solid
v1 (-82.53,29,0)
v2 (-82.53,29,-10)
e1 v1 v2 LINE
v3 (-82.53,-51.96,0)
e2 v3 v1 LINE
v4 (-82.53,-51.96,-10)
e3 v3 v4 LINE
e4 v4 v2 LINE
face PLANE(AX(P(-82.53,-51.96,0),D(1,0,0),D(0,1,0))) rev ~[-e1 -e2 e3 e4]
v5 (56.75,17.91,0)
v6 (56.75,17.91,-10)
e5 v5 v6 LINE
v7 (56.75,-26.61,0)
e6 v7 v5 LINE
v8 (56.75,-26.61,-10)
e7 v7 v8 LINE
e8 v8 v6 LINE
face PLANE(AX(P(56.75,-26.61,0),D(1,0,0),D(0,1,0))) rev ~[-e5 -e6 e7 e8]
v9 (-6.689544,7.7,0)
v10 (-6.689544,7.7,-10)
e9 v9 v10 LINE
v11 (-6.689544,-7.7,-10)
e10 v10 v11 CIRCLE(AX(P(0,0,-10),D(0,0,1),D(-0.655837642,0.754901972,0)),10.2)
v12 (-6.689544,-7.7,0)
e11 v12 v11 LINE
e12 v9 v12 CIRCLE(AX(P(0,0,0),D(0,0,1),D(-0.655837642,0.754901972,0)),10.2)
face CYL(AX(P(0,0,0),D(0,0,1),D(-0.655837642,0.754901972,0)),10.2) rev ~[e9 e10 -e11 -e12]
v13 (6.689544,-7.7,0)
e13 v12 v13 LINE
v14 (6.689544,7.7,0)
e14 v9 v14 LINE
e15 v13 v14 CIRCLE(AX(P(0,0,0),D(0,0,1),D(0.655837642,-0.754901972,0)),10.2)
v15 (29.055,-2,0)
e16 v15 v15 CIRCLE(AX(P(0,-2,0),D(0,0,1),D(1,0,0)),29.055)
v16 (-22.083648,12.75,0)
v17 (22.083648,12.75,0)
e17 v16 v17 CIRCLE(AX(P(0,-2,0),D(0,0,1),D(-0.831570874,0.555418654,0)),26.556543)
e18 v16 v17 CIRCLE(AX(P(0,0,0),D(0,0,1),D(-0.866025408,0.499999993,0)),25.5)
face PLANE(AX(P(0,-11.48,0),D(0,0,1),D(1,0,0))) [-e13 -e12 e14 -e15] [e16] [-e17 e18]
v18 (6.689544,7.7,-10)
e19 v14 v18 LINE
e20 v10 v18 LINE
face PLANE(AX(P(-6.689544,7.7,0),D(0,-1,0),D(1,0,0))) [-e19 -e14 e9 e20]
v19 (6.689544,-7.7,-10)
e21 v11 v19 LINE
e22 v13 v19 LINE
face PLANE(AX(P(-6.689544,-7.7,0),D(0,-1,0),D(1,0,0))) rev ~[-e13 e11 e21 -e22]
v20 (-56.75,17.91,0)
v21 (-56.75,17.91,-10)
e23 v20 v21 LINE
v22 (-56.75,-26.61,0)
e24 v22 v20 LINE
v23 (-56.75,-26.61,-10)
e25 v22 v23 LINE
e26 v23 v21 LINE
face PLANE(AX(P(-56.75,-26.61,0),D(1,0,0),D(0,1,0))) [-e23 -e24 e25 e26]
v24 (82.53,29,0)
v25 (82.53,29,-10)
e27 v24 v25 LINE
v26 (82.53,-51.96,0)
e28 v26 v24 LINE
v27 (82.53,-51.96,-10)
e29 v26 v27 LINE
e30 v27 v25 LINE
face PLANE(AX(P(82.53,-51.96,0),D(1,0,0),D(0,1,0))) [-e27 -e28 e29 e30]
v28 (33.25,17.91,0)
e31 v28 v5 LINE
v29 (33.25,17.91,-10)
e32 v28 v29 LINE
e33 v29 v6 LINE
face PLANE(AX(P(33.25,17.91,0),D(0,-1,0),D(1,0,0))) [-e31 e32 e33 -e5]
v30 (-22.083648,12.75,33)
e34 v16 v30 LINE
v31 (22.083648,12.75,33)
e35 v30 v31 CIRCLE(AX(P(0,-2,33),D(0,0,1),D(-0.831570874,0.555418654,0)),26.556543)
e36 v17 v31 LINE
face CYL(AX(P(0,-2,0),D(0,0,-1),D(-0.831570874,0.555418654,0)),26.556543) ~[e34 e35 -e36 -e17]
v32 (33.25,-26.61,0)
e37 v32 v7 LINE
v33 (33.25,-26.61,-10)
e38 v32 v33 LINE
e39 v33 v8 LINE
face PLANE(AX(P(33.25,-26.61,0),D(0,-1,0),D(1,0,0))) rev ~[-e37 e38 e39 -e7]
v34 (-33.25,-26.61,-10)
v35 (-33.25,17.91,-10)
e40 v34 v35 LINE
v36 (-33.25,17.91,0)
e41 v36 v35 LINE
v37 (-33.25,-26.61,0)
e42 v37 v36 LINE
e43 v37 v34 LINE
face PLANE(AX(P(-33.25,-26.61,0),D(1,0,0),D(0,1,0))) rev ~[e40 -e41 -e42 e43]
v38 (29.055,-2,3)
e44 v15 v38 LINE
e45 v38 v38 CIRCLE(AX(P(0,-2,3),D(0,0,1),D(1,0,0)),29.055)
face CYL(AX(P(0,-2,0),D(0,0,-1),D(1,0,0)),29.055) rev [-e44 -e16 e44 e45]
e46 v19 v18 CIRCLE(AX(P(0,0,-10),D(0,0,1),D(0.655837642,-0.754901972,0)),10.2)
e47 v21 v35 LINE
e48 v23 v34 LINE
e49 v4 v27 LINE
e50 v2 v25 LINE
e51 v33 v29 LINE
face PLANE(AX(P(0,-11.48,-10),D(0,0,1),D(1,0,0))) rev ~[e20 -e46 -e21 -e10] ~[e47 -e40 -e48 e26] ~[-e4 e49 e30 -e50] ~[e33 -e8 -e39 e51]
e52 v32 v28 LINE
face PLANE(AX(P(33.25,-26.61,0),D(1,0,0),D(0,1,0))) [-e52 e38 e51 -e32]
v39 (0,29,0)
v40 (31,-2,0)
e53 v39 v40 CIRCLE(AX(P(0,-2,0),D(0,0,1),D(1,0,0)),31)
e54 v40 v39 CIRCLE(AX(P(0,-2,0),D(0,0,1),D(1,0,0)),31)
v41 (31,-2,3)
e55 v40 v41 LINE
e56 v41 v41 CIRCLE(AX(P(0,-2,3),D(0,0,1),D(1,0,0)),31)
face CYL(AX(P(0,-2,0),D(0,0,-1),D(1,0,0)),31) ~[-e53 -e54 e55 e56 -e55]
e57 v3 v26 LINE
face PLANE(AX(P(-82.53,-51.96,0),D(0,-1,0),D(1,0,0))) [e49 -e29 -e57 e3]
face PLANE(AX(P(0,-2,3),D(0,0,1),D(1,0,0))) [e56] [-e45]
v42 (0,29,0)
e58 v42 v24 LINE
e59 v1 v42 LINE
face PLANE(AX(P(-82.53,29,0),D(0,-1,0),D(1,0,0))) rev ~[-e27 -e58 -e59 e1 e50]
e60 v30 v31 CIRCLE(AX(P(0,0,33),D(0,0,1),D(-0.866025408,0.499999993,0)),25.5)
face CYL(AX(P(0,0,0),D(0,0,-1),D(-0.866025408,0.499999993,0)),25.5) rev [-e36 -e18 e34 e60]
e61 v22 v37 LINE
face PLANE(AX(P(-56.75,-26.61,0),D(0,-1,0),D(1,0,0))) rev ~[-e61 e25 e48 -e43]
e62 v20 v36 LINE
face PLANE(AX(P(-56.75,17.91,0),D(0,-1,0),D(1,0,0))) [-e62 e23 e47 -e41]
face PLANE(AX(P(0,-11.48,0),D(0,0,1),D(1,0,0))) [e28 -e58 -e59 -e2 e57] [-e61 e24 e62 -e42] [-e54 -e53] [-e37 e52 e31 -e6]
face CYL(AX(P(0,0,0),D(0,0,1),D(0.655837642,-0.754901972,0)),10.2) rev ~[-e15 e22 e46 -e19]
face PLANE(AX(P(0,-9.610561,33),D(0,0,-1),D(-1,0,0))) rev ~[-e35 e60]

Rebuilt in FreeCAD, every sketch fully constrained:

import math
import FreeCAD as App
import Part
import Sketcher
from FreeCAD import Vector


def add_polygon(sketch, points):
    """Adds a closed chain of lines whose ends are joined by coincident constraints."""
    first, n = sketch.GeometryCount, len(points)
    for a, b in zip(points, points[1:] + points[:1]):
        sketch.addGeometry(Part.LineSegment(App.Vector(*a, 0), App.Vector(*b, 0)), False)
    for i in range(n):
        sketch.addConstraint(Sketcher.Constraint("Coincident", first + i, 2, first + (i + 1) % n, 1))

doc = App.newDocument("Part")
body = doc.addObject("PartDesign::Body", "Body")

sketch1 = body.newObject("Sketcher::SketchObject", "Sketch")
sketch1.AttachmentSupport = (doc.getObject("XY_Plane"), [""])
sketch1.MapMode = "FlatFace"
sketch1.addGeometry([
    Part.ArcOfCircle(Part.Circle(Vector(0, 0, 0), Vector(0, 0, 1), 25.5), math.radians(150), math.radians(390)),
    Part.ArcOfCircle(Part.Circle(Vector(0, -2, 0), Vector(0, 0, 1), 26.556543), math.radians(146.260444), math.radians(393.739556)),
], False)
sketch1.addConstraint([
    Sketcher.Constraint("Coincident", 0, 1, 1, 1),
    Sketcher.Constraint("Coincident", 1, 2, 0, 2),
    Sketcher.Constraint("Coincident", 0, 3, -1, 1),
    Sketcher.Constraint("PointOnObject", 1, 3, -2),
    Sketcher.Constraint("Radius", 0, 25.5),
    Sketcher.Constraint("DistanceY", 1, 3, -1, 1, 2.0),
    Sketcher.Constraint("DistanceY", -1, 1, 0, 1, 12.75),
])
pad1 = body.newObject("PartDesign::Pad", "Pad")
pad1.Profile = sketch1
pad1.Length = 33

sketch2 = body.newObject("Sketcher::SketchObject", "Sketch001")
sketch2.AttachmentSupport = (doc.getObject("XY_Plane"), [""])
sketch2.MapMode = "FlatFace"
add_polygon(sketch2, [(-82.53, 29), (-82.53, -51.96), (82.53, -51.96), (82.53, 29)])
add_polygon(sketch2, [(-33.25, -26.61), (-56.75, -26.61), (-56.75, 17.91), (-33.25, 17.91)])
sketch2.addGeometry(Part.ArcOfCircle(Part.Circle(Vector(0, 0, 0), Vector(0, 0, 1), 10.2), math.radians(130.983195), math.radians(229.016805)), False)
sketch2.addGeometry(Part.LineSegment(Vector(-6.689544, 7.7, 0), Vector(6.689544, 7.7, 0)), False)
sketch2.addGeometry(Part.ArcOfCircle(Part.Circle(Vector(0, 0, 0), Vector(0, 0, 1), 10.2), math.radians(-49.016805), math.radians(49.016805)), False)
sketch2.addGeometry(Part.LineSegment(Vector(6.689544, -7.7, 0), Vector(-6.689544, -7.7, 0)), False)
add_polygon(sketch2, [(56.75, -26.61), (33.25, -26.61), (33.25, 17.91), (56.75, 17.91)])
sketch2.addConstraint([
    Sketcher.Constraint("Coincident", 8, 1, 9, 1),
    Sketcher.Constraint("Coincident", 9, 2, 10, 2),
    Sketcher.Constraint("Coincident", 10, 1, 11, 1),
    Sketcher.Constraint("Coincident", 11, 2, 8, 2),
    Sketcher.Constraint("Vertical", 0),
    Sketcher.Constraint("Horizontal", 1),
    Sketcher.Constraint("Vertical", 2),
    Sketcher.Constraint("Horizontal", 3),
    Sketcher.Constraint("Horizontal", 4),
    Sketcher.Constraint("Vertical", 5),
    Sketcher.Constraint("Horizontal", 6),
    Sketcher.Constraint("Vertical", 7),
    Sketcher.Constraint("Horizontal", 9),
    Sketcher.Constraint("Horizontal", 11),
    Sketcher.Constraint("Horizontal", 12),
    Sketcher.Constraint("Vertical", 13),
    Sketcher.Constraint("Horizontal", 14),
    Sketcher.Constraint("Vertical", 15),
    Sketcher.Constraint("Coincident", 8, 3, -1, 1),
    Sketcher.Constraint("Coincident", 10, 3, -1, 1),
    Sketcher.Constraint("Equal", 8, 10),
    Sketcher.Constraint("Symmetric", 7, 2, 12, 2, -2),
    Sketcher.Constraint("Symmetric", 5, 2, 14, 2, -2),
    Sketcher.Constraint("Vertical", 9, 2, 10, 1),
    Sketcher.Constraint("Radius", 8, 10.2),
    Sketcher.Constraint("DistanceX", 4, 2, 4, 1, 23.5),
    Sketcher.Constraint("DistanceY", -1, 1, 2, 2, 29.0),
    Sketcher.Constraint("DistanceX", 1, 1, 1, 2, 165.06),
    Sketcher.Constraint("DistanceY", 0, 2, 0, 1, 80.96),
    Sketcher.Constraint("DistanceY", 5, 1, 5, 2, 44.52),
    Sketcher.Constraint("DistanceY", -1, 1, 8, 1, 7.7),
    Sketcher.Constraint("DistanceX", 0, 2, -1, 1, 82.53),
    Sketcher.Constraint("DistanceX", 4, 2, -1, 1, 56.75),
    Sketcher.Constraint("DistanceY", 4, 2, -1, 1, 26.61),
])
pad2 = body.newObject("PartDesign::Pad", "Pad001")
pad2.Profile = sketch2
pad2.Length = 10
pad2.Reversed = True

sketch3 = body.newObject("Sketcher::SketchObject", "Sketch002")
sketch3.AttachmentSupport = (doc.getObject("XY_Plane"), [""])
sketch3.MapMode = "FlatFace"
sketch3.addGeometry([
    Part.Circle(Vector(0, -2, 0), Vector(0, 0, 1), 31),
    Part.Circle(Vector(0, -2, 0), Vector(0, 0, 1), 29.055),
], False)
sketch3.addConstraint([
    Sketcher.Constraint("Coincident", 1, 3, 0, 3),
    Sketcher.Constraint("PointOnObject", 0, 3, -2),
    Sketcher.Constraint("Diameter", 0, 62.0),
    Sketcher.Constraint("Diameter", 1, 58.11),
    Sketcher.Constraint("DistanceY", 0, 3, -1, 1, 2.0),
])
pad3 = body.newObject("PartDesign::Pad", "Pad002")
pad3.Profile = sketch3
pad3.Length = 3

doc.recompute()
